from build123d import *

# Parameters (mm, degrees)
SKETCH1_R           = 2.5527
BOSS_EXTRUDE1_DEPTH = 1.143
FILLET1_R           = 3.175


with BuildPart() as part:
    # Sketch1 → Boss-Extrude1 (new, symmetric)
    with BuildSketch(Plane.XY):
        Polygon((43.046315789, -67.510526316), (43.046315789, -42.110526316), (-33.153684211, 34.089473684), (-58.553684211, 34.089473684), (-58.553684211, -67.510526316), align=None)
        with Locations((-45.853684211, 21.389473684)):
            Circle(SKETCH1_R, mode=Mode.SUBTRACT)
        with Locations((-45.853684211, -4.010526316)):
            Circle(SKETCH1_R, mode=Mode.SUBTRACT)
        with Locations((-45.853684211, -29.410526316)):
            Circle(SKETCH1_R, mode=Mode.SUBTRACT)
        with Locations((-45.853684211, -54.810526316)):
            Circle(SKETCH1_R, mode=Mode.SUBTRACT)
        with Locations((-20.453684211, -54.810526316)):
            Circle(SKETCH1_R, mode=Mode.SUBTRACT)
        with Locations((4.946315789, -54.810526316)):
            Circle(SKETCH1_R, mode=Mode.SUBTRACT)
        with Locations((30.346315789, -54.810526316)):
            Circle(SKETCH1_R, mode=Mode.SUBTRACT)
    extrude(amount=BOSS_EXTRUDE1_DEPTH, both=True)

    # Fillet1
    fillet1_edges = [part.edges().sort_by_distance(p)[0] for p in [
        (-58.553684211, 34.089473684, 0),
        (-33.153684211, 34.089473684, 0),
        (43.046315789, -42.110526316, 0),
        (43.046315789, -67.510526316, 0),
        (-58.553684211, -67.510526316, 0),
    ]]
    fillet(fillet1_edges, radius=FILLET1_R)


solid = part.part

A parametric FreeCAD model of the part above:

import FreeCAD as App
import Part
import Sketcher

V = App.Vector
Q = App.Units.Quantity


def edges_at(feature, points):
    """Names of the edges that pass closest to the given points."""
    edges = feature.Shape.Edges
    near = lambda p: min(range(len(edges)), key=lambda i: edges[i].distToShape(Part.Vertex(*p))[0])
    return sorted({f"Edge{near(p) + 1}" for p in points})


def add_polygon(sketch, points):
    """Adds a closed chain of lines whose ends are joined by coincident constraints."""
    first, n = sketch.GeometryCount, len(points)
    for a, b in zip(points, points[1:] + points[:1]):
        sketch.addGeometry(Part.LineSegment(App.Vector(*a, 0), App.Vector(*b, 0)), False)
    for i in range(n):
        sketch.addConstraint(Sketcher.Constraint("Coincident", first + i, 2, first + (i + 1) % n, 1))

doc = App.newDocument("Part")
params = doc.addObject("Spreadsheet::Sheet", "Params")
for row, (alias, value) in enumerate([
    ("sketch1_width", "1 in"),
    ("sketch1_width2", "4 in"),
    ("sketch1_diameter", "0.201 in"),
    ("pad1_length", "0.09 in"),
    ("fillet_radius", "0.125 in"),
], start=1):
    params.set(f"A{row}", alias)
    params.set(f"B{row}", "=" + value)
    params.setAlias(f"B{row}", alias)

body = doc.addObject("PartDesign::Body", "Body")

# Sketch on XY plane
sketch1 = doc.addObject("Sketcher::SketchObject", "Sketch")
body.addObject(sketch1)
sketch1.AttachmentSupport = (doc.XY_Plane, [""])
sketch1.MapMode = "FlatFace"
add_polygon(sketch1, [(43, -67.5), (43, -42.1), (-33.2, 34.1), (-58.6, 34.1), (-58.6, -67.5)])  # lines 0-4
sketch1.addGeometry(Part.Circle(V(-45.9, -54.8, 0), V(0, 0, 1), 2.6), False)  # 5
sketch1.addGeometry(Part.Circle(V(-20.5, -54.8, 0), V(0, 0, 1), 2.6), False)  # 6
sketch1.addGeometry(Part.Circle(V(-45.9, -29.4, 0), V(0, 0, 1), 2.6), False)  # 7
sketch1.addGeometry(Part.Circle(V(4.9, -54.8, 0), V(0, 0, 1), 2.6), False)  # 8
sketch1.addGeometry(Part.Circle(V(30.3, -54.8, 0), V(0, 0, 1), 2.6), False)  # 9
sketch1.addGeometry(Part.Circle(V(-45.9, -4, 0), V(0, 0, 1), 2.6), False)  # 10
sketch1.addGeometry(Part.Circle(V(-45.9, 21.4, 0), V(0, 0, 1), 2.6), False)  # 11
sketch1.addConstraint(Sketcher.Constraint("Vertical", 0))
sketch1.addConstraint(Sketcher.Constraint("Horizontal", 2))
sketch1.addConstraint(Sketcher.Constraint("Vertical", 3))
sketch1.addConstraint(Sketcher.Constraint("Horizontal", 4))
sketch1.addConstraint(Sketcher.Constraint("Equal", 5, 6))
sketch1.addConstraint(Sketcher.Constraint("Equal", 6, 7))
sketch1.addConstraint(Sketcher.Constraint("Equal", 7, 8))
sketch1.addConstraint(Sketcher.Constraint("Equal", 8, 9))
sketch1.addConstraint(Sketcher.Constraint("Equal", 9, 10))
sketch1.addConstraint(Sketcher.Constraint("Equal", 10, 11))
sketch1.addConstraint(Sketcher.Constraint("Horizontal", 5, 3, 6, 3))
sketch1.addConstraint(Sketcher.Constraint("Horizontal", 6, 3, 8, 3))
sketch1.addConstraint(Sketcher.Constraint("Horizontal", 8, 3, 9, 3))
sketch1.addConstraint(Sketcher.Constraint("Vertical", 5, 3, 7, 3))
sketch1.addConstraint(Sketcher.Constraint("Vertical", 7, 3, 10, 3))
sketch1.addConstraint(Sketcher.Constraint("Vertical", 10, 3, 11, 3))
sketch1.addConstraint(Sketcher.Constraint("Equal", 2, 0))
sketch1.addConstraint(Sketcher.Constraint("Equal", 4, 3))
sketch1.addConstraint(Sketcher.Constraint("DistanceX", 2, 2, 2, 1, Q("1 in")))
sketch1.addConstraint(Sketcher.Constraint("DistanceX", 4, 1, 4, 2, Q("4 in")))
sketch1.addConstraint(Sketcher.Constraint("Diameter", 5, Q("0.201 in")))
sketch1.addConstraint(Sketcher.Constraint("DistanceX", 5, 3, 6, 3, Q("1 in")))
sketch1.addConstraint(Sketcher.Constraint("DistanceY", 5, 3, 7, 3, Q("1 in")))
sketch1.addConstraint(Sketcher.Constraint("DistanceX", 6, 3, 8, 3, Q("1 in")))
sketch1.addConstraint(Sketcher.Constraint("DistanceX", 8, 3, 9, 3, Q("1 in")))
sketch1.addConstraint(Sketcher.Constraint("DistanceY", 7, 3, 10, 3, Q("1 in")))
sketch1.addConstraint(Sketcher.Constraint("DistanceY", 10, 3, 11, 3, Q("1 in")))
sketch1.addConstraint(Sketcher.Constraint("DistanceX", 9, 3, 0, 2, Q("0.5 in")))
sketch1.addConstraint(Sketcher.Constraint("DistanceY", 9, 3, 0, 2, Q("0.5 in")))
sketch1.addConstraint(Sketcher.Constraint("DistanceX", 5, 3, -1, 1, Q("45.853684 mm")))
sketch1.addConstraint(Sketcher.Constraint("DistanceY", 5, 3, -1, 1, Q("54.810526 mm")))
sketch1.setExpression("Constraints[23]", "Params.sketch1_width")
sketch1.setExpression("Constraints[24]", "Params.sketch1_width2")
sketch1.setExpression("Constraints[25]", "Params.sketch1_diameter")
pad1 = doc.addObject("PartDesign::Pad", "Pad")
body.addObject(pad1)
pad1.Profile = sketch1
pad1.setExpression("Length", "Params.pad1_length")
pad1.Midplane = True
doc.recompute()

fillet = doc.addObject("PartDesign::Fillet", "Fillet")
body.addObject(fillet)
fillet.Base = (pad1, edges_at(pad1, [
    (-58.554, 34.089, 0),
    (-33.154, 34.089, 0),
    (43.046, -42.111, 0),
    (43.046, -67.511, 0),
    (-58.554, -67.511, 0),
]))
fillet.setExpression("Radius", "Params.fillet_radius")

doc.recompute()
